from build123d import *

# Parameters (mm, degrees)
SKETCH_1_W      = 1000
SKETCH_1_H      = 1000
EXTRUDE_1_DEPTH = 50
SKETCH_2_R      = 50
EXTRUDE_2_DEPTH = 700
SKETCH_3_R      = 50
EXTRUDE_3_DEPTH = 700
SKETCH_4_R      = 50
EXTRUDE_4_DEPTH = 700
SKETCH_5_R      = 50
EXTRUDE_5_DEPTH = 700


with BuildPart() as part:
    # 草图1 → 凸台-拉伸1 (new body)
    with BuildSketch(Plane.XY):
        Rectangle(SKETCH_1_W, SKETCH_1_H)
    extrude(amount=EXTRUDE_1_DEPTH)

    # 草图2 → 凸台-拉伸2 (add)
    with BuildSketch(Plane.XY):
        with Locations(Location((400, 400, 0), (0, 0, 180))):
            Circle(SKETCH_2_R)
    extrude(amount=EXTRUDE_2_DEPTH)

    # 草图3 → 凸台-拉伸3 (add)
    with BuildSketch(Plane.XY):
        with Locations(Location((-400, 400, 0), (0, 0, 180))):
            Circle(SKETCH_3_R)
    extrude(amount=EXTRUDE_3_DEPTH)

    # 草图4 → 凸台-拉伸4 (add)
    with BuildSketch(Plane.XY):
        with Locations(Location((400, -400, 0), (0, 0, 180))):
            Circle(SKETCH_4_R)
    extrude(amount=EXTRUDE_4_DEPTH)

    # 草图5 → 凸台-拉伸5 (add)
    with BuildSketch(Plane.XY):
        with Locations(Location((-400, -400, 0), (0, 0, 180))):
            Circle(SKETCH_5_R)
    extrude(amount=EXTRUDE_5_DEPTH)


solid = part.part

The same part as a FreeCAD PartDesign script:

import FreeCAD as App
import Part
import Sketcher
Q = App.Units.Quantity

doc = App.newDocument("Part")
body = doc.addObject("PartDesign::Body", "Body")

sketch1 = body.newObject("Sketcher::SketchObject", "Sketch")
sketch1.AttachmentSupport = (doc.getObject("XY_Plane"), [""])
sketch1.MapMode = "FlatFace"
sketch1.addGeometry(Part.LineSegment(App.Vector(-500, 500, 0), App.Vector(-500, -500, 0)), False)
sketch1.addGeometry(Part.LineSegment(App.Vector(-500, -500, 0), App.Vector(500, -500, 0)), False)
sketch1.addGeometry(Part.LineSegment(App.Vector(500, -500, 0), App.Vector(500, 500, 0)), False)
sketch1.addGeometry(Part.LineSegment(App.Vector(500, 500, 0), App.Vector(-500, 500, 0)), False)
sketch1.addConstraint(Sketcher.Constraint("Coincident", 0, 2, 1, 1))
sketch1.addConstraint(Sketcher.Constraint("Coincident", 1, 2, 2, 1))
sketch1.addConstraint(Sketcher.Constraint("Coincident", 2, 2, 3, 1))
sketch1.addConstraint(Sketcher.Constraint("Coincident", 3, 2, 0, 1))
sketch1.addConstraint(Sketcher.Constraint("Vertical", 0))
sketch1.addConstraint(Sketcher.Constraint("Horizontal", 1))
sketch1.addConstraint(Sketcher.Constraint("Vertical", 2))
sketch1.addConstraint(Sketcher.Constraint("Horizontal", 3))
sketch1.addConstraint(Sketcher.Constraint("Symmetric", 0, 2, 2, 2, -1, 1))
sketch1.addConstraint(Sketcher.Constraint("Equal", 3, 0))
sketch1.addConstraint(Sketcher.Constraint("DistanceX", 1, 1, 1, 2, Q("1000 mm")))
pad1 = body.newObject("PartDesign::Pad", "Pad")
pad1.Profile = sketch1
pad1.Length = 50

sketch2 = body.newObject("Sketcher::SketchObject", "Sketch001")
sketch2.AttachmentSupport = (doc.getObject("XY_Plane"), [""])
sketch2.MapMode = "FlatFace"
sketch2.addGeometry(Part.Circle(App.Vector(400, 400, 0), App.Vector(0, 0, 1), 50), False)
sketch2.addConstraint(Sketcher.Constraint("Diameter", 0, Q("100 mm")))
sketch2.addConstraint(Sketcher.Constraint("DistanceX", -1, 1, 0, 3, Q("400 mm")))
sketch2.addConstraint(Sketcher.Constraint("DistanceY", -1, 1, 0, 3, Q("400 mm")))
pad2 = body.newObject("PartDesign::Pad", "Pad001")
pad2.Profile = sketch2
pad2.Length = 700

sketch3 = body.newObject("Sketcher::SketchObject", "Sketch002")
sketch3.AttachmentSupport = (doc.getObject("XY_Plane"), [""])
sketch3.MapMode = "FlatFace"
sketch3.addGeometry(Part.Circle(App.Vector(-400, 400, 0), App.Vector(0, 0, 1), 50), False)
sketch3.addConstraint(Sketcher.Constraint("Diameter", 0, Q("100 mm")))
sketch3.addConstraint(Sketcher.Constraint("DistanceX", 0, 3, -1, 1, Q("400 mm")))
sketch3.addConstraint(Sketcher.Constraint("DistanceY", -1, 1, 0, 3, Q("400 mm")))
pad3 = body.newObject("PartDesign::Pad", "Pad002")
pad3.Profile = sketch3
pad3.Length = 700

sketch4 = body.newObject("Sketcher::SketchObject", "Sketch003")
sketch4.AttachmentSupport = (doc.getObject("XY_Plane"), [""])
sketch4.MapMode = "FlatFace"
sketch4.addGeometry(Part.Circle(App.Vector(400, -400, 0), App.Vector(0, 0, 1), 50), False)
sketch4.addConstraint(Sketcher.Constraint("Diameter", 0, Q("100 mm")))
sketch4.addConstraint(Sketcher.Constraint("DistanceX", -1, 1, 0, 3, Q("400 mm")))
sketch4.addConstraint(Sketcher.Constraint("DistanceY", 0, 3, -1, 1, Q("400 mm")))
pad4 = body.newObject("PartDesign::Pad", "Pad003")
pad4.Profile = sketch4
pad4.Length = 700

sketch5 = body.newObject("Sketcher::SketchObject", "Sketch004")
sketch5.AttachmentSupport = (doc.getObject("XY_Plane"), [""])
sketch5.MapMode = "FlatFace"
sketch5.addGeometry(Part.Circle(App.Vector(-400, -400, 0), App.Vector(0, 0, 1), 50), False)
sketch5.addConstraint(Sketcher.Constraint("Diameter", 0, Q("100 mm")))
sketch5.addConstraint(Sketcher.Constraint("DistanceX", 0, 3, -1, 1, Q("400 mm")))
sketch5.addConstraint(Sketcher.Constraint("DistanceY", 0, 3, -1, 1, Q("400 mm")))
pad5 = body.newObject("PartDesign::Pad", "Pad004")
pad5.Profile = sketch5
pad5.Length = 700

doc.recompute()
